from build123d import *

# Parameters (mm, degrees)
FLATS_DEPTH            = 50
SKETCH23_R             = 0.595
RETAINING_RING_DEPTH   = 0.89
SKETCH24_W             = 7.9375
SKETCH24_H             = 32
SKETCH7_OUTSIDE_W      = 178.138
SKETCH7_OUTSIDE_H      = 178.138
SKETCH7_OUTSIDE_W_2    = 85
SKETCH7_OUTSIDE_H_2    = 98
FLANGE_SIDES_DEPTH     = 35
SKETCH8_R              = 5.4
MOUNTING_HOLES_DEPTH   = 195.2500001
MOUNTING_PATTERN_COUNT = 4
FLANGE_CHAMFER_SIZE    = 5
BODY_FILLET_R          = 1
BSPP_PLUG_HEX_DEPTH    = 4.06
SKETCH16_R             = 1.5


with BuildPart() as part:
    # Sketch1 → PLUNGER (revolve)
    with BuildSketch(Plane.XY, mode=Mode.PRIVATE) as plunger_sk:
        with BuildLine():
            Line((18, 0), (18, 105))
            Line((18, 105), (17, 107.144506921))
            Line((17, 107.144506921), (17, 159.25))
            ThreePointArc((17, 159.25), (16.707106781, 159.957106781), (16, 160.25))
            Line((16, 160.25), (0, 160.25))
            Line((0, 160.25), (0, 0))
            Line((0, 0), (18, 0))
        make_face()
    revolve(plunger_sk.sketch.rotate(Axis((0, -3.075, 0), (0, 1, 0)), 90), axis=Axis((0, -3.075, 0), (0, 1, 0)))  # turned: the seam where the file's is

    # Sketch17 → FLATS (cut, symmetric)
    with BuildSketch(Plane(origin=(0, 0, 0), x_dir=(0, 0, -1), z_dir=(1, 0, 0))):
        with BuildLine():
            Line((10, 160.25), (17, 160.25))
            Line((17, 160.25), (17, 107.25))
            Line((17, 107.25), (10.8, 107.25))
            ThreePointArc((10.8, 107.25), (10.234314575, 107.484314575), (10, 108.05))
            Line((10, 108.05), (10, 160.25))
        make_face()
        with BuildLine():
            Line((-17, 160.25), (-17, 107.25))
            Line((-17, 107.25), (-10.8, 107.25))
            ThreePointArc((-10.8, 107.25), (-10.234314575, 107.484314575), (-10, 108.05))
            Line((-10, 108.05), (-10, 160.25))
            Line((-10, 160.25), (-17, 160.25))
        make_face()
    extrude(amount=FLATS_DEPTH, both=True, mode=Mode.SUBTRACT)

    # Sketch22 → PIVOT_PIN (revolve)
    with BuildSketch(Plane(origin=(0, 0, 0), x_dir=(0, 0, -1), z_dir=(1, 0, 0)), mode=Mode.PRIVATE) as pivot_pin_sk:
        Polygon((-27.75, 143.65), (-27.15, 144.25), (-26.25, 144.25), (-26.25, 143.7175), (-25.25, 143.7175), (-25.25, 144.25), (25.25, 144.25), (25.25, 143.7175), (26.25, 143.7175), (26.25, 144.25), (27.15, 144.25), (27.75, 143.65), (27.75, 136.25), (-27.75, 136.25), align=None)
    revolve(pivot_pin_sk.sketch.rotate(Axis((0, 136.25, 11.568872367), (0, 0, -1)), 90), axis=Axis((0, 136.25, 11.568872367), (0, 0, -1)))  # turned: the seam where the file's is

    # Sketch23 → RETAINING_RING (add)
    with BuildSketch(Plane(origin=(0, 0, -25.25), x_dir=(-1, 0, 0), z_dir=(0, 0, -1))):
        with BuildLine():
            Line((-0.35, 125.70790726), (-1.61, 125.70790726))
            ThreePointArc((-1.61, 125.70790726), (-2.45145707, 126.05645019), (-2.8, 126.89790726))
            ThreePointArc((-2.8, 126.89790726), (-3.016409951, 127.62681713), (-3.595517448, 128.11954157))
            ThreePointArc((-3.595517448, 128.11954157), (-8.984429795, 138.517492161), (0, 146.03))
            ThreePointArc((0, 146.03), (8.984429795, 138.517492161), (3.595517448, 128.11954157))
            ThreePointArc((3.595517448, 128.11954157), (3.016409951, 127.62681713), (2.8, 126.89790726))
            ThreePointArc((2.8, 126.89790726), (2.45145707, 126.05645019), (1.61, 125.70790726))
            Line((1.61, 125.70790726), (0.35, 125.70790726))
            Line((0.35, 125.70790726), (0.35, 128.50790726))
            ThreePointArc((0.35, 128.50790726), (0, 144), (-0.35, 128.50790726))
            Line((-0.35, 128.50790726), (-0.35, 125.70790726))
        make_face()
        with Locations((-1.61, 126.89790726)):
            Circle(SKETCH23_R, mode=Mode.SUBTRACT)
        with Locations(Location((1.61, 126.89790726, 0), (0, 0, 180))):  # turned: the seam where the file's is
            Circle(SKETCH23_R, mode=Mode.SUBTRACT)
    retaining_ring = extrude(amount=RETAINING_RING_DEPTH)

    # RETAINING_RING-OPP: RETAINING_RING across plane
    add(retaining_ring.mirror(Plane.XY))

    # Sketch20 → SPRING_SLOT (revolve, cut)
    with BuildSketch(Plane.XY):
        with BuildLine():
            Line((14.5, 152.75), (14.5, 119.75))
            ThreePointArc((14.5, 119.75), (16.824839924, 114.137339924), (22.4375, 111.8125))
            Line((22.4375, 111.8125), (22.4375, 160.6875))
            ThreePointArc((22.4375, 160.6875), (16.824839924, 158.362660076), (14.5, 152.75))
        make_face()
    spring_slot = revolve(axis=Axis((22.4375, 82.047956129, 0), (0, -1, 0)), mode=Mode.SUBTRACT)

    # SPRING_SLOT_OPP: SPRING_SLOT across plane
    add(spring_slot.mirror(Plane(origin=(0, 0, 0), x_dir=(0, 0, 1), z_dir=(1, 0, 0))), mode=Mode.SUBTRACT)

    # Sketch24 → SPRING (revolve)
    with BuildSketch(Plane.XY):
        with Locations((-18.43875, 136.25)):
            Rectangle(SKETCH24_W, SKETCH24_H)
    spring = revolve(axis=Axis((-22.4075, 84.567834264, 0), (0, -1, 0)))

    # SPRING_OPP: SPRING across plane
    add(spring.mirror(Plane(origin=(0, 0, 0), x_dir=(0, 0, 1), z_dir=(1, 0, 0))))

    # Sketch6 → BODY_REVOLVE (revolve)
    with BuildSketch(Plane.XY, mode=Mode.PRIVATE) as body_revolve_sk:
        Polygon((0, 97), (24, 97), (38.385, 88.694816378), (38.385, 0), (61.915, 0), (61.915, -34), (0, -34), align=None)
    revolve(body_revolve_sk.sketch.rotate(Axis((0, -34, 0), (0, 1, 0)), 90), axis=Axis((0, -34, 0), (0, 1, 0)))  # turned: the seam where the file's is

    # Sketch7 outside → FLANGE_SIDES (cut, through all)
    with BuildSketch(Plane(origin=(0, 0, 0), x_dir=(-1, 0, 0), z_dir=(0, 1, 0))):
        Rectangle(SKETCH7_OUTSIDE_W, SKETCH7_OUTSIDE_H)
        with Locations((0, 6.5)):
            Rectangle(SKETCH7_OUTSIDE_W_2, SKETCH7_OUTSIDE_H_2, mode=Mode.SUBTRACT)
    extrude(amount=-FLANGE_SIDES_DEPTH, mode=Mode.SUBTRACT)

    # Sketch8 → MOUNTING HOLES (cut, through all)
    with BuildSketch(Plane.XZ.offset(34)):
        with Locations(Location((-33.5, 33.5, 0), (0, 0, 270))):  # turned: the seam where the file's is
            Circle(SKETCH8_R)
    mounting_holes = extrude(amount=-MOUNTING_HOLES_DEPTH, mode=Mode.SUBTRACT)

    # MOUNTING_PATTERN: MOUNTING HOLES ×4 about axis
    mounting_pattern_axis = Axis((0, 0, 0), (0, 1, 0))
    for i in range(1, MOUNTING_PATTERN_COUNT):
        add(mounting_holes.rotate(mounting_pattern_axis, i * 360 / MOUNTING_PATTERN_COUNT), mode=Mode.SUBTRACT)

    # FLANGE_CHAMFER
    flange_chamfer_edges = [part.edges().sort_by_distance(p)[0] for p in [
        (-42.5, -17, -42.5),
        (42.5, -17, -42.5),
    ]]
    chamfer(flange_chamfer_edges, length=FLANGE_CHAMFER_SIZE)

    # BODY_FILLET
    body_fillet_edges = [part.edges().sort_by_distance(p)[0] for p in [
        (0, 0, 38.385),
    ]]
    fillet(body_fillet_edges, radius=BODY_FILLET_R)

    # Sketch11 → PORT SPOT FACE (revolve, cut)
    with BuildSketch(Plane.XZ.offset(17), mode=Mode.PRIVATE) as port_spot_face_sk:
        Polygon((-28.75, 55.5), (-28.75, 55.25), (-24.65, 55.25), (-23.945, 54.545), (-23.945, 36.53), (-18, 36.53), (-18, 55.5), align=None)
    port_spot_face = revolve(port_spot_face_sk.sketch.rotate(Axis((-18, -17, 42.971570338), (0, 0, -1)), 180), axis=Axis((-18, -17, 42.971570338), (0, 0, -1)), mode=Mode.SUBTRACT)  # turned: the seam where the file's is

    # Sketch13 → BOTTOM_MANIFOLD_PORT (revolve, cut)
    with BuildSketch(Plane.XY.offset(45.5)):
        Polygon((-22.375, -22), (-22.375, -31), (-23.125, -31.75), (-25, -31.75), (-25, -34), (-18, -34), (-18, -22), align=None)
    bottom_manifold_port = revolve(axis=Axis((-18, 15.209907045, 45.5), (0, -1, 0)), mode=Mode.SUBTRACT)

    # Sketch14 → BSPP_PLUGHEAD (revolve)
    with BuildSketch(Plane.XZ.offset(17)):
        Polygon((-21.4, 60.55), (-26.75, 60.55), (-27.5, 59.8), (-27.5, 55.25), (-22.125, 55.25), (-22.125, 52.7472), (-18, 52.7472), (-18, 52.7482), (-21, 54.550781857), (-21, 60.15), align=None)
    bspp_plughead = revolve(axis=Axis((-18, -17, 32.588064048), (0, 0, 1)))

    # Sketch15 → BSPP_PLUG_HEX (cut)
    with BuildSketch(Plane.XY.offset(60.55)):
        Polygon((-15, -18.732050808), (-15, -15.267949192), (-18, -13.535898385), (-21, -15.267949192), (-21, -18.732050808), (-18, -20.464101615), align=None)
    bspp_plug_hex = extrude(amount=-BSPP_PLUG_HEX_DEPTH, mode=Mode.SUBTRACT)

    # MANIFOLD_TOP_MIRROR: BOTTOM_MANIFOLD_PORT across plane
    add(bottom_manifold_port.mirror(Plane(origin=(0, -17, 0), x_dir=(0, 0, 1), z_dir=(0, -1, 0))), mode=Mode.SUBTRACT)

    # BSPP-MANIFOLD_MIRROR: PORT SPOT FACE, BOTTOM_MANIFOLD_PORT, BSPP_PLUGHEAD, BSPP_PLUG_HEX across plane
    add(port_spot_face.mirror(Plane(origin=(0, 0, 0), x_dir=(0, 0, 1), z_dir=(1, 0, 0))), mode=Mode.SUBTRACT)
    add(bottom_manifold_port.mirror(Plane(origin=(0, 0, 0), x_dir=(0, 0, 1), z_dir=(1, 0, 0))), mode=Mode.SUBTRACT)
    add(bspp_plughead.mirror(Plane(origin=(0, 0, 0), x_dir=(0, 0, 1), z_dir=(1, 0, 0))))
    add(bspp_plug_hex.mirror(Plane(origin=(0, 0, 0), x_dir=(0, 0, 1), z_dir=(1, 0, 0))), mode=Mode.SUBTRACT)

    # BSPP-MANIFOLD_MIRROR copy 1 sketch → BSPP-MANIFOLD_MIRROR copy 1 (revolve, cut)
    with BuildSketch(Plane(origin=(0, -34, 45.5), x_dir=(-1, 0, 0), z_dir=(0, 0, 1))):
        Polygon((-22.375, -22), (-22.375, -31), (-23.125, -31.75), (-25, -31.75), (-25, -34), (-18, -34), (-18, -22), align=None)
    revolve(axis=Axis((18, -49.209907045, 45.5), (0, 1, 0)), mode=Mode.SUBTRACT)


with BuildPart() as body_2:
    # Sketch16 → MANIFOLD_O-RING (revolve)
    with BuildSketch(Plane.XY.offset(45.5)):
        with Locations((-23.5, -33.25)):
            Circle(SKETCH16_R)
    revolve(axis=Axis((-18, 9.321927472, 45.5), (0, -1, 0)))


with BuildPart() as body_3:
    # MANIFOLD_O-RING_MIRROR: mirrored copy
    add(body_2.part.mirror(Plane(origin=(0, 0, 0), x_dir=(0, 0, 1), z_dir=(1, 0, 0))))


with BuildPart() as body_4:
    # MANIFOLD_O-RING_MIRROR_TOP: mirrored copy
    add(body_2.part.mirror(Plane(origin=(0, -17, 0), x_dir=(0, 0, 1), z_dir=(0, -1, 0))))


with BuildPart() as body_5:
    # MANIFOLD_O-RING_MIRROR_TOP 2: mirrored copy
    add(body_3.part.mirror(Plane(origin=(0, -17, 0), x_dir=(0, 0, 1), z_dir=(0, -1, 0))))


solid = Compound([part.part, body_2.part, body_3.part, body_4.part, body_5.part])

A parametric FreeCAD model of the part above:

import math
import FreeCAD as App
import Part
import Sketcher
from FreeCAD import Vector
Q = App.Units.Quantity


def edges_at(feature, points):
    """Names of the edges that pass closest to the given points."""
    edges = feature.Shape.Edges
    near = lambda p: min(range(len(edges)), key=lambda i: edges[i].distToShape(Part.Vertex(*p))[0])
    return sorted({f"Edge{near(p) + 1}" for p in points})


def add_polygon(sketch, points):
    """Adds a closed chain of lines whose ends are joined by coincident constraints."""
    first, n = sketch.GeometryCount, len(points)
    for a, b in zip(points, points[1:] + points[:1]):
        sketch.addGeometry(Part.LineSegment(App.Vector(*a, 0), App.Vector(*b, 0)), False)
    for i in range(n):
        sketch.addConstraint(Sketcher.Constraint("Coincident", first + i, 2, first + (i + 1) % n, 1))

doc = App.newDocument("Part")
body = doc.addObject("PartDesign::Body", "Body")

sketch1 = doc.addObject("Sketcher::SketchObject", "Sketch")
body.addObject(sketch1)
sketch1.AttachmentSupport = (doc.XY_Plane, [""])
sketch1.MapMode = "FlatFace"
sketch1.addGeometry(Part.LineSegment(Vector(18, 0, 0), Vector(18, 105, 0)), False)
sketch1.addGeometry(Part.LineSegment(Vector(18, 105, 0), Vector(17, 107.144507, 0)), False)
sketch1.addGeometry(Part.LineSegment(Vector(17, 107.144507, 0), Vector(17, 159.25, 0)), False)
sketch1.addGeometry(Part.ArcOfCircle(Part.Circle(Vector(16, 159.25, 0), Vector(0, 0, 1), 1), math.radians(0), math.radians(90)), False)
sketch1.addGeometry(Part.LineSegment(Vector(16, 160.25, 0), Vector(0, 160.25, 0)), False)
sketch1.addGeometry(Part.LineSegment(Vector(0, 160.25, 0), Vector(0, 0, 0)), False)
sketch1.addGeometry(Part.LineSegment(Vector(0, 0, 0), Vector(18, 0, 0)), False)
sketch1.addConstraint(Sketcher.Constraint("Coincident", 0, 2, 1, 1))
sketch1.addConstraint(Sketcher.Constraint("Coincident", 1, 2, 2, 1))
sketch1.addConstraint(Sketcher.Constraint("Tangent", 2, 2, 3, 1))
sketch1.addConstraint(Sketcher.Constraint("Tangent", 3, 2, 4, 1))
sketch1.addConstraint(Sketcher.Constraint("Coincident", 4, 2, 5, 1))
sketch1.addConstraint(Sketcher.Constraint("Coincident", 5, 2, 6, 1))
sketch1.addConstraint(Sketcher.Constraint("Coincident", 6, 2, 0, 1))
sketch1.addConstraint(Sketcher.Constraint("Vertical", 0))
sketch1.addConstraint(Sketcher.Constraint("Vertical", 2))
sketch1.addConstraint(Sketcher.Constraint("Horizontal", 4))
sketch1.addConstraint(Sketcher.Constraint("Vertical", 5))
sketch1.addConstraint(Sketcher.Constraint("Horizontal", 6))
sketch1.addConstraint(Sketcher.Constraint("Coincident", 5, 2, -1, 1))
sketch1.addConstraint(Sketcher.Constraint("Radius", 3, 1.0))
sketch1.addConstraint(Sketcher.Constraint("DistanceX", 4, 2, 4, 1, 16.0))
sketch1.addConstraint(Sketcher.Constraint("DistanceX", 6, 1, 6, 2, 18.0))
sketch1.addConstraint(Sketcher.Constraint("DistanceY", 0, 1, 0, 2, 105.0))
sketch1.addConstraint(Sketcher.Constraint("Angle", 1, Q("115 deg")))
sketch1.addConstraint(Sketcher.Constraint("DistanceY", 5, 2, 5, 1, 160.25))
revolution = doc.addObject("PartDesign::Revolution", "Revolution")
body.addObject(revolution)
revolution.Profile = sketch1
revolution.ReferenceAxis = (sketch1, ["V_Axis"])
revolution.Angle = 360

sketch2 = doc.addObject("Sketcher::SketchObject", "Sketch001")
body.addObject(sketch2)
sketch2.AttachmentSupport = (doc.YZ_Plane, [""])
sketch2.MapMode = "FlatFace"
sketch2.addGeometry(Part.LineSegment(Vector(160.25, -17, 0), Vector(160.25, -10, 0)), False)
sketch2.addGeometry(Part.LineSegment(Vector(160.25, -10, 0), Vector(108.05, -10, 0)), False)
sketch2.addGeometry(Part.ArcOfCircle(Part.Circle(Vector(108.05, -10.8, 0), Vector(0, 0, 1), 0.8), math.radians(90), math.radians(180)), False)
sketch2.addGeometry(Part.LineSegment(Vector(107.25, -10.8, 0), Vector(107.25, -17, 0)), False)
sketch2.addGeometry(Part.LineSegment(Vector(107.25, -17, 0), Vector(160.25, -17, 0)), False)
sketch2.addGeometry(Part.LineSegment(Vector(160.25, 17, 0), Vector(107.25, 17, 0)), False)
sketch2.addGeometry(Part.LineSegment(Vector(107.25, 17, 0), Vector(107.25, 10.8, 0)), False)
sketch2.addGeometry(Part.ArcOfCircle(Part.Circle(Vector(108.05, 10.8, 0), Vector(0, 0, 1), 0.8), math.radians(180), math.radians(270)), False)
sketch2.addGeometry(Part.LineSegment(Vector(108.05, 10, 0), Vector(160.25, 10, 0)), False)
sketch2.addGeometry(Part.LineSegment(Vector(160.25, 10, 0), Vector(160.25, 17, 0)), False)
sketch2.addConstraint(Sketcher.Constraint("Coincident", 0, 2, 1, 1))
sketch2.addConstraint(Sketcher.Constraint("Tangent", 1, 2, 2, 1))
sketch2.addConstraint(Sketcher.Constraint("Tangent", 2, 2, 3, 1))
sketch2.addConstraint(Sketcher.Constraint("Coincident", 3, 2, 4, 1))
sketch2.addConstraint(Sketcher.Constraint("Coincident", 4, 2, 0, 1))
sketch2.addConstraint(Sketcher.Constraint("Coincident", 5, 2, 6, 1))
sketch2.addConstraint(Sketcher.Constraint("Tangent", 6, 2, 7, 1))
sketch2.addConstraint(Sketcher.Constraint("Tangent", 7, 2, 8, 1))
sketch2.addConstraint(Sketcher.Constraint("Coincident", 8, 2, 9, 1))
sketch2.addConstraint(Sketcher.Constraint("Coincident", 9, 2, 5, 1))
sketch2.addConstraint(Sketcher.Constraint("Vertical", 0))
sketch2.addConstraint(Sketcher.Constraint("Horizontal", 1))
sketch2.addConstraint(Sketcher.Constraint("Vertical", 3))
sketch2.addConstraint(Sketcher.Constraint("Horizontal", 4))
sketch2.addConstraint(Sketcher.Constraint("Horizontal", 5))
sketch2.addConstraint(Sketcher.Constraint("Vertical", 6))
sketch2.addConstraint(Sketcher.Constraint("Horizontal", 8))
sketch2.addConstraint(Sketcher.Constraint("Vertical", 9))
sketch2.addConstraint(Sketcher.Constraint("Equal", 2, 7))
sketch2.addConstraint(Sketcher.Constraint("Symmetric", 2, 3, 7, 3, -1))
sketch2.addConstraint(Sketcher.Constraint("Symmetric", 4, 2, 9, 2, -1))
sketch2.addConstraint(Sketcher.Constraint("Radius", 2, 0.8))
sketch2.addConstraint(Sketcher.Constraint("DistanceX", 4, 1, 4, 2, 53.0))
sketch2.addConstraint(Sketcher.Constraint("DistanceY", 0, 1, 0, 2, 7.0))
sketch2.addConstraint(Sketcher.Constraint("DistanceY", 0, 2, -1, 1, 10.0))
sketch2.addConstraint(Sketcher.Constraint("DistanceX", -1, 1, 2, 3, 108.05))
pocket1 = doc.addObject("PartDesign::Pocket", "Pocket")
body.addObject(pocket1)
pocket1.Profile = sketch2
pocket1.Length = 100
pocket1.Midplane = True

sketch3 = doc.addObject("Sketcher::SketchObject", "Sketch002")
body.addObject(sketch3)
sketch3.AttachmentSupport = (doc.YZ_Plane, [""])
sketch3.MapMode = "FlatFace"
add_polygon(sketch3, [(144.25, 27.15), (143.65, 27.75), (136.25, 27.75), (136.25, -27.75), (143.65, -27.75), (144.25, -27.15), (144.25, -26.25), (143.7175, -26.25), (143.7175, -25.25), (144.25, -25.25), (144.25, 25.25), (143.7175, 25.25), (143.7175, 26.25), (144.25, 26.25)])
sketch3.addGeometry(Part.LineSegment(Vector(136.25, 27.75, 0), Vector(136.25, -27.75, 0)), True)
sketch3.addConstraint(Sketcher.Constraint("Horizontal", 1))
sketch3.addConstraint(Sketcher.Constraint("Vertical", 2))
sketch3.addConstraint(Sketcher.Constraint("Horizontal", 3))
sketch3.addConstraint(Sketcher.Constraint("Vertical", 5))
sketch3.addConstraint(Sketcher.Constraint("Horizontal", 6))
sketch3.addConstraint(Sketcher.Constraint("Vertical", 7))
sketch3.addConstraint(Sketcher.Constraint("Horizontal", 8))
sketch3.addConstraint(Sketcher.Constraint("Vertical", 9))
sketch3.addConstraint(Sketcher.Constraint("Horizontal", 10))
sketch3.addConstraint(Sketcher.Constraint("Vertical", 11))
sketch3.addConstraint(Sketcher.Constraint("Horizontal", 12))
sketch3.addConstraint(Sketcher.Constraint("Vertical", 13))
sketch3.addConstraint(Sketcher.Constraint("Vertical", 14))
sketch3.addConstraint(Sketcher.Constraint("Coincident", 14, 1, 1, 2))
sketch3.addConstraint(Sketcher.Constraint("Symmetric", 0, 2, 3, 2, -1))
sketch3.addConstraint(Sketcher.Constraint("Symmetric", 7, 2, 10, 2, -1))
sketch3.addConstraint(Sketcher.Constraint("Symmetric", 5, 2, 12, 2, -1))
sketch3.addConstraint(Sketcher.Constraint("Perpendicular", 0, 4))
sketch3.addConstraint(Sketcher.Constraint("Horizontal", 3, 2, 14, 2))
sketch3.addConstraint(Sketcher.Constraint("Vertical", 5, 2, 8, 2))
sketch3.addConstraint(Sketcher.Constraint("Equal", 5, 13))
sketch3.addConstraint(Sketcher.Constraint("DistanceY", 7, 1, 7, 2, 1.0))
sketch3.addConstraint(Sketcher.Constraint("DistanceX", 1, 2, 1, 1, 7.4))
sketch3.addConstraint(Sketcher.Constraint("DistanceY", 2, 2, 2, 1, 55.5))
sketch3.addConstraint(Sketcher.Constraint("DistanceY", 5, 1, 5, 2, 0.9))
sketch3.addConstraint(Sketcher.Constraint("DistanceY", 9, 1, 9, 2, 50.5))
sketch3.addConstraint(Sketcher.Constraint("DistanceX", -1, 1, 0, 2, 143.65))
sketch3.addConstraint(Sketcher.Constraint("DistanceX", 6, 2, 6, 1, 0.5325))
revolution2 = doc.addObject("PartDesign::Revolution", "Revolution001")
body.addObject(revolution2)
revolution2.Profile = sketch3
revolution2.ReferenceAxis = (sketch3, ["Axis0"])
revolution2.Angle = 360

sketch4 = doc.addObject("Sketcher::SketchObject", "Sketch003")
body.addObject(sketch4)
sketch4.AttachmentSupport = (doc.XY_Plane, [""])
sketch4.MapMode = "FlatFace"
sketch4.AttachmentOffset = App.Placement(Vector(0, 0, -25.25), App.Rotation())
sketch4.addGeometry(Part.LineSegment(Vector(1.61, 125.707907, 0), Vector(0.35, 125.707907, 0)), False)
sketch4.addGeometry(Part.LineSegment(Vector(0.35, 125.707907, 0), Vector(0.35, 128.507907, 0)), False)
sketch4.addGeometry(Part.ArcOfCircle(Part.Circle(Vector(0, 136.25, 0), Vector(0, 0, 1), 7.75), math.radians(-87.411568), math.radians(267.411568)), False)
sketch4.addGeometry(Part.LineSegment(Vector(-0.35, 128.507907, 0), Vector(-0.35, 125.707907, 0)), False)
sketch4.addGeometry(Part.LineSegment(Vector(-0.35, 125.707907, 0), Vector(-1.61, 125.707907, 0)), False)
sketch4.addGeometry(Part.ArcOfCircle(Part.Circle(Vector(-1.61, 126.897907, 0), Vector(0, 0, 1), 1.19), math.radians(180), math.radians(270)), False)
sketch4.addGeometry(Part.ArcOfCircle(Part.Circle(Vector(-4.135759, 126.897907, 0), Vector(0, 0, 1), 1.335759), math.radians(0), math.radians(66.143637)), False)
sketch4.addGeometry(Part.ArcOfCircle(Part.Circle(Vector(0.18841, 136.676048, 0), Vector(0, 0, 1), 9.355849), math.radians(91.153915), math.radians(246.143637)), False)
sketch4.addGeometry(Part.ArcOfCircle(Part.Circle(Vector(-0.18841, 136.676048, 0), Vector(0, 0, 1), 9.355849), math.radians(-66.143637), math.radians(88.846085)), False)
sketch4.addGeometry(Part.ArcOfCircle(Part.Circle(Vector(4.135759, 126.897907, 0), Vector(0, 0, 1), 1.335759), math.radians(113.856363), math.radians(180)), False)
sketch4.addGeometry(Part.ArcOfCircle(Part.Circle(Vector(1.61, 126.897907, 0), Vector(0, 0, 1), 1.19), math.radians(-90), math.radians(0)), False)
sketch4.addGeometry(Part.Circle(Vector(-1.61, 126.897907, 0), Vector(0, 0, 1), 0.595), False)
sketch4.addGeometry(Part.Circle(Vector(1.61, 126.897907, 0), Vector(0, 0, 1), 0.595), False)
sketch4.addConstraint(Sketcher.Constraint("Coincident", 0, 2, 1, 1))
sketch4.addConstraint(Sketcher.Constraint("Coincident", 1, 2, 2, 1))
sketch4.addConstraint(Sketcher.Constraint("Coincident", 2, 2, 3, 1))
sketch4.addConstraint(Sketcher.Constraint("Coincident", 3, 2, 4, 1))
sketch4.addConstraint(Sketcher.Constraint("Tangent", 4, 2, 5, 2))
sketch4.addConstraint(Sketcher.Constraint("Tangent", 5, 1, 6, 1))
sketch4.addConstraint(Sketcher.Constraint("Tangent", 6, 2, 7, 2))
sketch4.addConstraint(Sketcher.Constraint("Coincident", 7, 1, 8, 2))
sketch4.addConstraint(Sketcher.Constraint("Tangent", 8, 1, 9, 1))
sketch4.addConstraint(Sketcher.Constraint("Tangent", 9, 2, 10, 2))
sketch4.addConstraint(Sketcher.Constraint("Tangent", 10, 1, 0, 1))
sketch4.addConstraint(Sketcher.Constraint("Horizontal", 0))
sketch4.addConstraint(Sketcher.Constraint("Vertical", 1))
sketch4.addConstraint(Sketcher.Constraint("Vertical", 3))
sketch4.addConstraint(Sketcher.Constraint("Horizontal", 4))
sketch4.addConstraint(Sketcher.Constraint("Coincident", 11, 3, 5, 3))
sketch4.addConstraint(Sketcher.Constraint("Coincident", 12, 3, 10, 3))
sketch4.addConstraint(Sketcher.Constraint("Equal", 7, 8))
sketch4.addConstraint(Sketcher.Constraint("Equal", 6, 9))
sketch4.addConstraint(Sketcher.Constraint("Equal", 5, 10))
sketch4.addConstraint(Sketcher.Constraint("Equal", 11, 12))
sketch4.addConstraint(Sketcher.Constraint("Symmetric", 7, 3, 8, 3, -2))
sketch4.addConstraint(Sketcher.Constraint("Symmetric", 5, 3, 10, 3, -2))
sketch4.addConstraint(Sketcher.Constraint("Symmetric", 1, 2, 2, 2, -2))
sketch4.addConstraint(Sketcher.Constraint("Horizontal", 5, 3, 6, 3))
sketch4.addConstraint(Sketcher.Constraint("Diameter", 11, 1.19))
sketch4.addConstraint(Sketcher.Constraint("Radius", 2, 7.75))
sketch4.addConstraint(Sketcher.Constraint("Radius", 5, 1.19))
sketch4.addConstraint(Sketcher.Constraint("DistanceY", 1, 1, 1, 2, 2.8))
sketch4.addConstraint(Sketcher.Constraint("DistanceX", 0, 2, 0, 1, 1.26))
sketch4.addConstraint(Sketcher.Constraint("DistanceX", 5, 1, -1, 1, 2.8))
sketch4.addConstraint(Sketcher.Constraint("DistanceY", -1, 1, 2, 3, 136.25))
sketch4.addConstraint(Sketcher.Constraint("DistanceY", -1, 1, 7, 1, 146.03))
sketch4.addConstraint(Sketcher.Constraint("Radius", 6, 1.335759))
sketch4.addConstraint(Sketcher.Constraint("Radius", 7, 9.355849))
pad1 = doc.addObject("PartDesign::Pad", "Pad")
body.addObject(pad1)
pad1.Profile = sketch4
pad1.Length = 0.89
pad1.Reversed = True
doc.recompute()

mirrored = doc.addObject("PartDesign::Mirrored", "Mirrored")
body.addObject(mirrored)
mirrored.Originals = [pad1]
mirrored.MirrorPlane = (doc.XY_Plane, [""])
body.Tip = mirrored

sketch5 = doc.addObject("Sketcher::SketchObject", "Sketch004")
body.addObject(sketch5)
sketch5.AttachmentSupport = (doc.XY_Plane, [""])
sketch5.MapMode = "FlatFace"
sketch5.addGeometry(Part.LineSegment(Vector(14.5, 152.75, 0), Vector(14.5, 119.75, 0)), False)
sketch5.addGeometry(Part.ArcOfCircle(Part.Circle(Vector(22.4375, 119.75, 0), Vector(0, 0, 1), 7.9375), math.radians(180), math.radians(270)), False)
sketch5.addGeometry(Part.LineSegment(Vector(22.4375, 111.8125, 0), Vector(22.4375, 160.6875, 0)), False)
sketch5.addGeometry(Part.ArcOfCircle(Part.Circle(Vector(22.4375, 152.75, 0), Vector(0, 0, 1), 7.9375), math.radians(90), math.radians(180)), False)
sketch5.addGeometry(Part.LineSegment(Vector(22.4375, 160.6875, 0), Vector(22.4375, 111.8125, 0)), True)
sketch5.addConstraint(Sketcher.Constraint("Tangent", 0, 2, 1, 1))
sketch5.addConstraint(Sketcher.Constraint("Coincident", 1, 2, 2, 1))
sketch5.addConstraint(Sketcher.Constraint("Coincident", 2, 2, 3, 1))
sketch5.addConstraint(Sketcher.Constraint("Tangent", 3, 2, 0, 1))
sketch5.addConstraint(Sketcher.Constraint("Vertical", 0))
sketch5.addConstraint(Sketcher.Constraint("Vertical", 2))
sketch5.addConstraint(Sketcher.Constraint("Vertical", 4))
sketch5.addConstraint(Sketcher.Constraint("Coincident", 4, 1, 2, 2))
sketch5.addConstraint(Sketcher.Constraint("Equal", 1, 3))
sketch5.addConstraint(Sketcher.Constraint("Vertical", 3, 3, 1, 2))
sketch5.addConstraint(Sketcher.Constraint("Equal", 2, 4))
sketch5.addConstraint(Sketcher.Constraint("DistanceY", 0, 2, 0, 1, 33.0))
sketch5.addConstraint(Sketcher.Constraint("DistanceX", -1, 1, 0, 2, 14.5))
sketch5.addConstraint(Sketcher.Constraint("Radius", 1, 7.9375))
sketch5.addConstraint(Sketcher.Constraint("DistanceY", -1, 1, 1, 3, 119.75))
groove = doc.addObject("PartDesign::Groove", "Groove")
body.addObject(groove)
groove.Profile = sketch5
groove.ReferenceAxis = (sketch5, ["Axis0"])
groove.Angle = 360
doc.recompute()

mirrored2 = doc.addObject("PartDesign::Mirrored", "Mirrored001")
body.addObject(mirrored2)
mirrored2.Originals = [groove]
mirrored2.MirrorPlane = (doc.YZ_Plane, [""])
body.Tip = mirrored2

sketch6 = doc.addObject("Sketcher::SketchObject", "Sketch005")
body.addObject(sketch6)
sketch6.AttachmentSupport = (doc.XY_Plane, [""])
sketch6.MapMode = "FlatFace"
add_polygon(sketch6, [(-22.4075, 152.25), (-22.4075, 120.25), (-14.47, 120.25), (-14.47, 152.25)])
sketch6.addGeometry(Part.LineSegment(Vector(-22.4075, 152.25, 0), Vector(-22.4075, 120.25, 0)), True)
sketch6.addConstraint(Sketcher.Constraint("Vertical", 0))
sketch6.addConstraint(Sketcher.Constraint("Horizontal", 1))
sketch6.addConstraint(Sketcher.Constraint("Vertical", 2))
sketch6.addConstraint(Sketcher.Constraint("Horizontal", 3))
sketch6.addConstraint(Sketcher.Constraint("Vertical", 4))
sketch6.addConstraint(Sketcher.Constraint("Coincident", 4, 1, 3, 2))
sketch6.addConstraint(Sketcher.Constraint("Horizontal", 1, 2, 4, 2))
sketch6.addConstraint(Sketcher.Constraint("DistanceY", 0, 2, 0, 1, 32.0))
sketch6.addConstraint(Sketcher.Constraint("DistanceY", -1, 1, 0, 2, 120.25))
sketch6.addConstraint(Sketcher.Constraint("DistanceX", 1, 2, -1, 1, 14.47))
sketch6.addConstraint(Sketcher.Constraint("DistanceX", 1, 1, 1, 2, 7.9375))
revolution3 = doc.addObject("PartDesign::Revolution", "Revolution002")
body.addObject(revolution3)
revolution3.Profile = sketch6
revolution3.ReferenceAxis = (sketch6, ["Axis0"])
revolution3.Angle = 360
doc.recompute()

mirrored3 = doc.addObject("PartDesign::Mirrored", "Mirrored002")
body.addObject(mirrored3)
mirrored3.Originals = [revolution3]
mirrored3.MirrorPlane = (doc.YZ_Plane, [""])
body.Tip = mirrored3

sketch7 = doc.addObject("Sketcher::SketchObject", "Sketch006")
body.addObject(sketch7)
sketch7.AttachmentSupport = (doc.XY_Plane, [""])
sketch7.MapMode = "FlatFace"
add_polygon(sketch7, [(24, 97), (0, 97), (0, -34), (61.915, -34), (61.915, 0), (38.385, 0), (38.385, 88.694816)])
sketch7.addConstraint(Sketcher.Constraint("Horizontal", 0))
sketch7.addConstraint(Sketcher.Constraint("Vertical", 1))
sketch7.addConstraint(Sketcher.Constraint("Horizontal", 2))
sketch7.addConstraint(Sketcher.Constraint("Vertical", 3))
sketch7.addConstraint(Sketcher.Constraint("Horizontal", 4))
sketch7.addConstraint(Sketcher.Constraint("Vertical", 5))
sketch7.addConstraint(Sketcher.Constraint("PointOnObject", 0, 2, -2))
sketch7.addConstraint(Sketcher.Constraint("PointOnObject", 3, 2, -1))
sketch7.addConstraint(Sketcher.Constraint("DistanceX", 0, 2, 0, 1, 24.0))
sketch7.addConstraint(Sketcher.Constraint("DistanceY", 1, 2, 1, 1, 131.0))
sketch7.addConstraint(Sketcher.Constraint("DistanceY", 3, 1, 3, 2, 34.0))
sketch7.addConstraint(Sketcher.Constraint("Angle", 6, Q("150 deg")))
sketch7.addConstraint(Sketcher.Constraint("DistanceX", 4, 2, 4, 1, 23.53))
sketch7.addConstraint(Sketcher.Constraint("DistanceX", 2, 1, 2, 2, 61.915))
revolution4 = doc.addObject("PartDesign::Revolution", "Revolution003")
body.addObject(revolution4)
revolution4.Profile = sketch7
revolution4.ReferenceAxis = (sketch7, ["V_Axis"])
revolution4.Angle = 360

sketch8 = doc.addObject("Sketcher::SketchObject", "Sketch007")
body.addObject(sketch8)
sketch8.AttachmentSupport = (doc.XZ_Plane, [""])
sketch8.MapMode = "FlatFace"
add_polygon(sketch8, [(89.069, 89.069), (89.069, -89.069), (-89.069, -89.069), (-89.069, 89.069)])
add_polygon(sketch8, [(-42.5, -42.5), (42.5, -42.5), (42.5, 55.5), (-42.5, 55.5)])
sketch8.addConstraint(Sketcher.Constraint("Vertical", 0))
sketch8.addConstraint(Sketcher.Constraint("Horizontal", 1))
sketch8.addConstraint(Sketcher.Constraint("Vertical", 2))
sketch8.addConstraint(Sketcher.Constraint("Horizontal", 3))
sketch8.addConstraint(Sketcher.Constraint("Horizontal", 4))
sketch8.addConstraint(Sketcher.Constraint("Vertical", 5))
sketch8.addConstraint(Sketcher.Constraint("Horizontal", 6))
sketch8.addConstraint(Sketcher.Constraint("Vertical", 7))
sketch8.addConstraint(Sketcher.Constraint("Symmetric", 0, 2, 2, 2, -1, 1))
sketch8.addConstraint(Sketcher.Constraint("Equal", 3, 0))
sketch8.addConstraint(Sketcher.Constraint("DistanceX", 4, 1, 4, 2, 85.0))
sketch8.addConstraint(Sketcher.Constraint("DistanceY", 5, 1, 5, 2, 98.0))
sketch8.addConstraint(Sketcher.Constraint("DistanceX", -1, 1, 4, 2, 42.5))
sketch8.addConstraint(Sketcher.Constraint("DistanceY", 4, 2, -1, 1, 42.5))
sketch8.addConstraint(Sketcher.Constraint("DistanceX", 1, 2, 1, 1, 178.138))
pocket2 = doc.addObject("PartDesign::Pocket", "Pocket001")
body.addObject(pocket2)
pocket2.Profile = sketch8
pocket2.Type = "ThroughAll"
pocket2.Reversed = True

sketch9 = doc.addObject("Sketcher::SketchObject", "Sketch008")
body.addObject(sketch9)
sketch9.AttachmentSupport = (doc.XZ_Plane, [""])
sketch9.MapMode = "FlatFace"
sketch9.AttachmentOffset = App.Placement(Vector(0, 0, 34), App.Rotation())
sketch9.addGeometry(Part.Circle(Vector(-33.5, 33.5, 0), Vector(0, 0, 1), 5.4), False)
sketch9.addConstraint(Sketcher.Constraint("Diameter", 0, 10.8))
sketch9.addConstraint(Sketcher.Constraint("DistanceX", 0, 3, -1, 1, 33.5))
sketch9.addConstraint(Sketcher.Constraint("DistanceY", -1, 1, 0, 3, 33.5))
pocket3 = doc.addObject("PartDesign::Pocket", "Pocket002")
body.addObject(pocket3)
pocket3.Profile = sketch9
pocket3.Type = "ThroughAll"
doc.recompute()

polarpattern = doc.addObject("PartDesign::PolarPattern", "PolarPattern")
body.addObject(polarpattern)
polarpattern.Originals = [pocket3]
polarpattern.Axis = (doc.Y_Axis, [""])
polarpattern.Angle = 360
polarpattern.Occurrences = 4
body.Tip = polarpattern
doc.recompute()

chamfer = doc.addObject("PartDesign::Chamfer", "Chamfer")
body.addObject(chamfer)
chamfer.Base = (polarpattern, edges_at(polarpattern, [(-42.5, -17, -42.5), (42.5, -17, -42.5)]))
chamfer.Size = 5
doc.recompute()

fillet = doc.addObject("PartDesign::Fillet", "Fillet")
body.addObject(fillet)
fillet.Base = (chamfer, edges_at(chamfer, [(0, 0, 38.385)]))
fillet.Radius = 1

sketch10 = doc.addObject("Sketcher::SketchObject", "Sketch009")
body.addObject(sketch10)
sketch10.AttachmentSupport = (doc.XZ_Plane, [""])
sketch10.MapMode = "FlatFace"
sketch10.AttachmentOffset = App.Placement(Vector(0, 0, 17), App.Rotation())
add_polygon(sketch10, [(-28.75, 55.5), (-28.75, 55.25), (-24.65, 55.25), (-23.945, 54.545), (-23.945, 36.53), (-18, 36.53), (-18, 55.5)])
sketch10.addGeometry(Part.LineSegment(Vector(-18, 55.5, 0), Vector(-18, 36.53, 0)), True)
sketch10.addConstraint(Sketcher.Constraint("Vertical", 0))
sketch10.addConstraint(Sketcher.Constraint("Horizontal", 1))
sketch10.addConstraint(Sketcher.Constraint("Vertical", 3))
sketch10.addConstraint(Sketcher.Constraint("Horizontal", 4))
sketch10.addConstraint(Sketcher.Constraint("Vertical", 5))
sketch10.addConstraint(Sketcher.Constraint("Horizontal", 6))
sketch10.addConstraint(Sketcher.Constraint("Vertical", 7))
sketch10.addConstraint(Sketcher.Constraint("Coincident", 7, 1, 5, 2))
sketch10.addConstraint(Sketcher.Constraint("Horizontal", 3, 2, 7, 2))
sketch10.addConstraint(Sketcher.Constraint("Angle", 2, Q("-45 deg")))
sketch10.addConstraint(Sketcher.Constraint("DistanceX", 1, 1, 1, 2, 4.1))
sketch10.addConstraint(Sketcher.Constraint("DistanceX", 4, 2, -1, 1, 18.0))
sketch10.addConstraint(Sketcher.Constraint("DistanceX", 6, 2, 6, 1, 10.75))
sketch10.addConstraint(Sketcher.Constraint("DistanceY", 0, 2, 0, 1, 0.25))
sketch10.addConstraint(Sketcher.Constraint("DistanceY", 5, 1, 5, 2, 18.97))
sketch10.addConstraint(Sketcher.Constraint("DistanceY", -1, 1, 5, 2, 55.5))
sketch10.addConstraint(Sketcher.Constraint("DistanceX", 4, 1, 4, 2, 5.945))
groove2 = doc.addObject("PartDesign::Groove", "Groove001")
body.addObject(groove2)
groove2.Profile = sketch10
groove2.ReferenceAxis = (sketch10, ["Axis0"])
groove2.Angle = 360

sketch11 = doc.addObject("Sketcher::SketchObject", "Sketch010")
body.addObject(sketch11)
sketch11.AttachmentSupport = (doc.XY_Plane, [""])
sketch11.MapMode = "FlatFace"
sketch11.AttachmentOffset = App.Placement(Vector(0, 0, 45.5), App.Rotation())
add_polygon(sketch11, [(-22.375, -22), (-22.375, -31), (-23.125, -31.75), (-25, -31.75), (-25, -34), (-18, -34), (-18, -22)])
sketch11.addGeometry(Part.LineSegment(Vector(-18, -22, 0), Vector(-18, -34, 0)), True)
sketch11.addConstraint(Sketcher.Constraint("Vertical", 0))
sketch11.addConstraint(Sketcher.Constraint("Horizontal", 2))
sketch11.addConstraint(Sketcher.Constraint("Vertical", 3))
sketch11.addConstraint(Sketcher.Constraint("Horizontal", 4))
sketch11.addConstraint(Sketcher.Constraint("Vertical", 5))
sketch11.addConstraint(Sketcher.Constraint("Horizontal", 6))
sketch11.addConstraint(Sketcher.Constraint("Vertical", 7))
sketch11.addConstraint(Sketcher.Constraint("Coincident", 7, 1, 5, 2))
sketch11.addConstraint(Sketcher.Constraint("Horizontal", 3, 2, 7, 2))
sketch11.addConstraint(Sketcher.Constraint("DistanceX", 4, 1, 4, 2, 7.0))
sketch11.addConstraint(Sketcher.Constraint("DistanceY", 0, 2, 0, 1, 9.0))
sketch11.addConstraint(Sketcher.Constraint("DistanceY", 5, 1, 5, 2, 12.0))
sketch11.addConstraint(Sketcher.Constraint("Angle", 1, Q("-135 deg")))
sketch11.addConstraint(Sketcher.Constraint("DistanceY", 0, 2, -1, 1, 31.0))
sketch11.addConstraint(Sketcher.Constraint("DistanceX", 2, 2, -1, 1, 25.0))
sketch11.addConstraint(Sketcher.Constraint("DistanceY", 3, 2, 3, 1, 2.25))
sketch11.addConstraint(Sketcher.Constraint("DistanceX", 2, 2, 2, 1, 1.875))
groove3 = doc.addObject("PartDesign::Groove", "Groove002")
body.addObject(groove3)
groove3.Profile = sketch11
groove3.ReferenceAxis = (sketch11, ["Axis0"])
groove3.Angle = 360

sketch12 = doc.addObject("Sketcher::SketchObject", "Sketch011")
body.addObject(sketch12)
sketch12.AttachmentSupport = (doc.XZ_Plane, [""])
sketch12.MapMode = "FlatFace"
sketch12.AttachmentOffset = App.Placement(Vector(0, 0, 17), App.Rotation())
add_polygon(sketch12, [(-21.4, 60.55), (-26.75, 60.55), (-27.5, 59.8), (-27.5, 55.25), (-22.125, 55.25), (-22.125, 52.7472), (-18, 52.7472), (-18, 52.7482), (-21, 54.550782), (-21, 60.15)])
sketch12.addGeometry(Part.LineSegment(Vector(-18, 52.7472, 0), Vector(-18, 60.55, 0)), True)
sketch12.addConstraint(Sketcher.Constraint("Horizontal", 0))
sketch12.addConstraint(Sketcher.Constraint("Vertical", 2))
sketch12.addConstraint(Sketcher.Constraint("Horizontal", 3))
sketch12.addConstraint(Sketcher.Constraint("Vertical", 4))
sketch12.addConstraint(Sketcher.Constraint("Horizontal", 5))
sketch12.addConstraint(Sketcher.Constraint("Vertical", 6))
sketch12.addConstraint(Sketcher.Constraint("Vertical", 8))
sketch12.addConstraint(Sketcher.Constraint("Vertical", 10))
sketch12.addConstraint(Sketcher.Constraint("Coincident", 10, 1, 5, 2))
sketch12.addConstraint(Sketcher.Constraint("Perpendicular", 1, 9))
sketch12.addConstraint(Sketcher.Constraint("Horizontal", 9, 2, 10, 2))
sketch12.addConstraint(Sketcher.Constraint("Angle", 1, Q("-135 deg")))
sketch12.addConstraint(Sketcher.Constraint("Angle", 7, Q("149 deg")))
sketch12.addConstraint(Sketcher.Constraint("DistanceX", 5, 2, -1, 1, 18.0))
sketch12.addConstraint(Sketcher.Constraint("DistanceX", 7, 2, -1, 1, 21.0))
sketch12.addConstraint(Sketcher.Constraint("DistanceX", 0, 2, 0, 1, 5.35))
sketch12.addConstraint(Sketcher.Constraint("DistanceY", 2, 2, 2, 1, 4.55))
sketch12.addConstraint(Sketcher.Constraint("DistanceX", 1, 2, -1, 1, 27.5))
sketch12.addConstraint(Sketcher.Constraint("DistanceY", -1, 1, 1, 2, 59.8))
sketch12.addConstraint(Sketcher.Constraint("DistanceX", 9, 2, -1, 1, 21.4))
sketch12.addConstraint(Sketcher.Constraint("DistanceX", 3, 1, 3, 2, 5.375))
sketch12.addConstraint(Sketcher.Constraint("DistanceY", 6, 1, 6, 2, 0.001))
sketch12.addConstraint(Sketcher.Constraint("DistanceY", 4, 2, 4, 1, 2.5028))
revolution5 = doc.addObject("PartDesign::Revolution", "Revolution004")
body.addObject(revolution5)
revolution5.Profile = sketch12
revolution5.ReferenceAxis = (sketch12, ["Axis0"])
revolution5.Angle = 360

sketch13 = doc.addObject("Sketcher::SketchObject", "Sketch012")
body.addObject(sketch13)
sketch13.AttachmentSupport = (doc.XY_Plane, [""])
sketch13.MapMode = "FlatFace"
sketch13.AttachmentOffset = App.Placement(Vector(0, 0, 60.55), App.Rotation())
add_polygon(sketch13, [(-15, -18.732051), (-15, -15.267949), (-18, -13.535898), (-21, -15.267949), (-21, -18.732051), (-18, -20.464102)])
sketch13.addConstraint(Sketcher.Constraint("Vertical", 0))
sketch13.addConstraint(Sketcher.Constraint("Vertical", 3))
sketch13.addConstraint(Sketcher.Constraint("Parallel", 1, 4))
sketch13.addConstraint(Sketcher.Constraint("Parallel", 2, 5))
sketch13.addConstraint(Sketcher.Constraint("Horizontal", 0, 2, 2, 2))
sketch13.addConstraint(Sketcher.Constraint("Horizontal", 3, 2, 5, 2))
sketch13.addConstraint(Sketcher.Constraint("Vertical", 1, 2, 4, 2))
sketch13.addConstraint(Sketcher.Constraint("Angle", 1, Q("150 deg")))
sketch13.addConstraint(Sketcher.Constraint("DistanceX", 0, 2, -1, 1, 15.0))
sketch13.addConstraint(Sketcher.Constraint("DistanceX", 1, 2, -1, 1, 18.0))
sketch13.addConstraint(Sketcher.Constraint("DistanceY", 0, 1, 0, 2, 3.464102))
sketch13.addConstraint(Sketcher.Constraint("DistanceY", 1, 2, -1, 1, 13.535898))
pocket4 = doc.addObject("PartDesign::Pocket", "Pocket003")
body.addObject(pocket4)
pocket4.Profile = sketch13
pocket4.Length = 4.06
doc.recompute()

datumplane = doc.addObject("PartDesign::Plane", "DatumPlane")
body.addObject(datumplane)
datumplane.AttachmentSupport = (doc.XZ_Plane, [""])
datumplane.MapMode = "FlatFace"
datumplane.AttachmentOffset = App.Placement(Vector(0, 0, 17), App.Rotation())
mirrored4 = doc.addObject("PartDesign::Mirrored", "Mirrored003")
body.addObject(mirrored4)
mirrored4.Originals = [groove3]
mirrored4.MirrorPlane = (datumplane, [""])
body.Tip = mirrored4
doc.recompute()

mirrored5 = doc.addObject("PartDesign::Mirrored", "Mirrored004")
body.addObject(mirrored5)
mirrored5.Originals = [groove2, groove3, revolution5, pocket4]
mirrored5.MirrorPlane = (doc.YZ_Plane, [""])
body.Tip = mirrored5

sketch14 = doc.addObject("Sketcher::SketchObject", "Sketch013")
body.addObject(sketch14)
sketch14.AttachmentSupport = (doc.XY_Plane, [""])
sketch14.MapMode = "FlatFace"
sketch14.AttachmentOffset = App.Placement(Vector(0, 0, 45.5), App.Rotation())
add_polygon(sketch14, [(22.375, -12), (22.375, -3), (23.125, -2.25), (25, -2.25), (25, 0), (18, 0), (18, -12)])
sketch14.addGeometry(Part.LineSegment(Vector(18, -12, 0), Vector(18, 0, 0)), True)
sketch14.addConstraint(Sketcher.Constraint("Vertical", 0))
sketch14.addConstraint(Sketcher.Constraint("Horizontal", 2))
sketch14.addConstraint(Sketcher.Constraint("Vertical", 3))
sketch14.addConstraint(Sketcher.Constraint("Horizontal", 4))
sketch14.addConstraint(Sketcher.Constraint("Vertical", 5))
sketch14.addConstraint(Sketcher.Constraint("Horizontal", 6))
sketch14.addConstraint(Sketcher.Constraint("Vertical", 7))
sketch14.addConstraint(Sketcher.Constraint("Coincident", 7, 1, 5, 2))
sketch14.addConstraint(Sketcher.Constraint("PointOnObject", 3, 2, -1))
sketch14.addConstraint(Sketcher.Constraint("PointOnObject", 7, 2, -1))
sketch14.addConstraint(Sketcher.Constraint("DistanceX", 4, 2, 4, 1, 7.0))
sketch14.addConstraint(Sketcher.Constraint("DistanceY", 0, 1, 0, 2, 9.0))
sketch14.addConstraint(Sketcher.Constraint("DistanceY", 5, 2, 5, 1, 12.0))
sketch14.addConstraint(Sketcher.Constraint("Angle", 1, Q("45 deg")))
sketch14.addConstraint(Sketcher.Constraint("DistanceX", -1, 1, 2, 2, 25.0))
sketch14.addConstraint(Sketcher.Constraint("DistanceY", 3, 1, 3, 2, 2.25))
sketch14.addConstraint(Sketcher.Constraint("DistanceX", 2, 1, 2, 2, 1.875))
groove4 = doc.addObject("PartDesign::Groove", "Groove003")
body.addObject(groove4)
groove4.Profile = sketch14
groove4.ReferenceAxis = (sketch14, ["Axis0"])
groove4.Angle = 360
body2 = doc.addObject("PartDesign::Body", "Body001")

sketch15 = doc.addObject("Sketcher::SketchObject", "Sketch014")
body2.addObject(sketch15)
sketch15.AttachmentSupport = (doc.getObject("XY_Plane001"), [""])
sketch15.MapMode = "FlatFace"
sketch15.AttachmentOffset = App.Placement(Vector(0, 0, 45.5), App.Rotation())
sketch15.addGeometry(Part.Circle(Vector(-23.5, -33.25, 0), Vector(0, 0, 1), 1.5), False)
sketch15.addGeometry(Part.LineSegment(Vector(-18, -33.25, 0), Vector(-18, -43.25, 0)), True)
sketch15.addConstraint(Sketcher.Constraint("Vertical", 1))
sketch15.addConstraint(Sketcher.Constraint("Horizontal", 0, 3, 1, 1))
sketch15.addConstraint(Sketcher.Constraint("Diameter", 0, 3.0))
sketch15.addConstraint(Sketcher.Constraint("DistanceY", 1, 2, 1, 1, 10.0))
sketch15.addConstraint(Sketcher.Constraint("DistanceX", 1, 1, -1, 1, 18.0))
sketch15.addConstraint(Sketcher.Constraint("DistanceX", 0, 3, -1, 1, 23.5))
sketch15.addConstraint(Sketcher.Constraint("DistanceY", 0, 3, -1, 1, 33.25))
revolution6 = doc.addObject("PartDesign::Revolution", "Revolution005")
body2.addObject(revolution6)
revolution6.Profile = sketch15
revolution6.ReferenceAxis = (sketch15, ["Axis0"])
revolution6.Angle = 360
body3 = doc.addObject("PartDesign::Body", "Body002")
doc.recompute()

mirroring = doc.addObject("Part::Mirroring", "Mirroring")
mirroring.Source = body2
mirroring.Base = Vector(0, 0, 0)
mirroring.Normal = Vector(1, 0, 0)
body3.BaseFeature = mirroring
doc.recompute()
body4 = doc.addObject("PartDesign::Body", "Body003")
doc.recompute()

mirroring2 = doc.addObject("Part::Mirroring", "Mirroring001")
mirroring2.Source = body2
mirroring2.Base = Vector(0, -17, 0)
mirroring2.Normal = Vector(0, -1, 0)
body4.BaseFeature = mirroring2
doc.recompute()
body5 = doc.addObject("PartDesign::Body", "Body004")
doc.recompute()

mirroring3 = doc.addObject("Part::Mirroring", "Mirroring002")
mirroring3.Source = body3
mirroring3.Base = Vector(0, -17, 0)
mirroring3.Normal = Vector(0, -1, 0)
body5.BaseFeature = mirroring3
doc.recompute()
mirroring.Visibility = False
mirroring2.Visibility = False
mirroring3.Visibility = False

doc.recompute()
